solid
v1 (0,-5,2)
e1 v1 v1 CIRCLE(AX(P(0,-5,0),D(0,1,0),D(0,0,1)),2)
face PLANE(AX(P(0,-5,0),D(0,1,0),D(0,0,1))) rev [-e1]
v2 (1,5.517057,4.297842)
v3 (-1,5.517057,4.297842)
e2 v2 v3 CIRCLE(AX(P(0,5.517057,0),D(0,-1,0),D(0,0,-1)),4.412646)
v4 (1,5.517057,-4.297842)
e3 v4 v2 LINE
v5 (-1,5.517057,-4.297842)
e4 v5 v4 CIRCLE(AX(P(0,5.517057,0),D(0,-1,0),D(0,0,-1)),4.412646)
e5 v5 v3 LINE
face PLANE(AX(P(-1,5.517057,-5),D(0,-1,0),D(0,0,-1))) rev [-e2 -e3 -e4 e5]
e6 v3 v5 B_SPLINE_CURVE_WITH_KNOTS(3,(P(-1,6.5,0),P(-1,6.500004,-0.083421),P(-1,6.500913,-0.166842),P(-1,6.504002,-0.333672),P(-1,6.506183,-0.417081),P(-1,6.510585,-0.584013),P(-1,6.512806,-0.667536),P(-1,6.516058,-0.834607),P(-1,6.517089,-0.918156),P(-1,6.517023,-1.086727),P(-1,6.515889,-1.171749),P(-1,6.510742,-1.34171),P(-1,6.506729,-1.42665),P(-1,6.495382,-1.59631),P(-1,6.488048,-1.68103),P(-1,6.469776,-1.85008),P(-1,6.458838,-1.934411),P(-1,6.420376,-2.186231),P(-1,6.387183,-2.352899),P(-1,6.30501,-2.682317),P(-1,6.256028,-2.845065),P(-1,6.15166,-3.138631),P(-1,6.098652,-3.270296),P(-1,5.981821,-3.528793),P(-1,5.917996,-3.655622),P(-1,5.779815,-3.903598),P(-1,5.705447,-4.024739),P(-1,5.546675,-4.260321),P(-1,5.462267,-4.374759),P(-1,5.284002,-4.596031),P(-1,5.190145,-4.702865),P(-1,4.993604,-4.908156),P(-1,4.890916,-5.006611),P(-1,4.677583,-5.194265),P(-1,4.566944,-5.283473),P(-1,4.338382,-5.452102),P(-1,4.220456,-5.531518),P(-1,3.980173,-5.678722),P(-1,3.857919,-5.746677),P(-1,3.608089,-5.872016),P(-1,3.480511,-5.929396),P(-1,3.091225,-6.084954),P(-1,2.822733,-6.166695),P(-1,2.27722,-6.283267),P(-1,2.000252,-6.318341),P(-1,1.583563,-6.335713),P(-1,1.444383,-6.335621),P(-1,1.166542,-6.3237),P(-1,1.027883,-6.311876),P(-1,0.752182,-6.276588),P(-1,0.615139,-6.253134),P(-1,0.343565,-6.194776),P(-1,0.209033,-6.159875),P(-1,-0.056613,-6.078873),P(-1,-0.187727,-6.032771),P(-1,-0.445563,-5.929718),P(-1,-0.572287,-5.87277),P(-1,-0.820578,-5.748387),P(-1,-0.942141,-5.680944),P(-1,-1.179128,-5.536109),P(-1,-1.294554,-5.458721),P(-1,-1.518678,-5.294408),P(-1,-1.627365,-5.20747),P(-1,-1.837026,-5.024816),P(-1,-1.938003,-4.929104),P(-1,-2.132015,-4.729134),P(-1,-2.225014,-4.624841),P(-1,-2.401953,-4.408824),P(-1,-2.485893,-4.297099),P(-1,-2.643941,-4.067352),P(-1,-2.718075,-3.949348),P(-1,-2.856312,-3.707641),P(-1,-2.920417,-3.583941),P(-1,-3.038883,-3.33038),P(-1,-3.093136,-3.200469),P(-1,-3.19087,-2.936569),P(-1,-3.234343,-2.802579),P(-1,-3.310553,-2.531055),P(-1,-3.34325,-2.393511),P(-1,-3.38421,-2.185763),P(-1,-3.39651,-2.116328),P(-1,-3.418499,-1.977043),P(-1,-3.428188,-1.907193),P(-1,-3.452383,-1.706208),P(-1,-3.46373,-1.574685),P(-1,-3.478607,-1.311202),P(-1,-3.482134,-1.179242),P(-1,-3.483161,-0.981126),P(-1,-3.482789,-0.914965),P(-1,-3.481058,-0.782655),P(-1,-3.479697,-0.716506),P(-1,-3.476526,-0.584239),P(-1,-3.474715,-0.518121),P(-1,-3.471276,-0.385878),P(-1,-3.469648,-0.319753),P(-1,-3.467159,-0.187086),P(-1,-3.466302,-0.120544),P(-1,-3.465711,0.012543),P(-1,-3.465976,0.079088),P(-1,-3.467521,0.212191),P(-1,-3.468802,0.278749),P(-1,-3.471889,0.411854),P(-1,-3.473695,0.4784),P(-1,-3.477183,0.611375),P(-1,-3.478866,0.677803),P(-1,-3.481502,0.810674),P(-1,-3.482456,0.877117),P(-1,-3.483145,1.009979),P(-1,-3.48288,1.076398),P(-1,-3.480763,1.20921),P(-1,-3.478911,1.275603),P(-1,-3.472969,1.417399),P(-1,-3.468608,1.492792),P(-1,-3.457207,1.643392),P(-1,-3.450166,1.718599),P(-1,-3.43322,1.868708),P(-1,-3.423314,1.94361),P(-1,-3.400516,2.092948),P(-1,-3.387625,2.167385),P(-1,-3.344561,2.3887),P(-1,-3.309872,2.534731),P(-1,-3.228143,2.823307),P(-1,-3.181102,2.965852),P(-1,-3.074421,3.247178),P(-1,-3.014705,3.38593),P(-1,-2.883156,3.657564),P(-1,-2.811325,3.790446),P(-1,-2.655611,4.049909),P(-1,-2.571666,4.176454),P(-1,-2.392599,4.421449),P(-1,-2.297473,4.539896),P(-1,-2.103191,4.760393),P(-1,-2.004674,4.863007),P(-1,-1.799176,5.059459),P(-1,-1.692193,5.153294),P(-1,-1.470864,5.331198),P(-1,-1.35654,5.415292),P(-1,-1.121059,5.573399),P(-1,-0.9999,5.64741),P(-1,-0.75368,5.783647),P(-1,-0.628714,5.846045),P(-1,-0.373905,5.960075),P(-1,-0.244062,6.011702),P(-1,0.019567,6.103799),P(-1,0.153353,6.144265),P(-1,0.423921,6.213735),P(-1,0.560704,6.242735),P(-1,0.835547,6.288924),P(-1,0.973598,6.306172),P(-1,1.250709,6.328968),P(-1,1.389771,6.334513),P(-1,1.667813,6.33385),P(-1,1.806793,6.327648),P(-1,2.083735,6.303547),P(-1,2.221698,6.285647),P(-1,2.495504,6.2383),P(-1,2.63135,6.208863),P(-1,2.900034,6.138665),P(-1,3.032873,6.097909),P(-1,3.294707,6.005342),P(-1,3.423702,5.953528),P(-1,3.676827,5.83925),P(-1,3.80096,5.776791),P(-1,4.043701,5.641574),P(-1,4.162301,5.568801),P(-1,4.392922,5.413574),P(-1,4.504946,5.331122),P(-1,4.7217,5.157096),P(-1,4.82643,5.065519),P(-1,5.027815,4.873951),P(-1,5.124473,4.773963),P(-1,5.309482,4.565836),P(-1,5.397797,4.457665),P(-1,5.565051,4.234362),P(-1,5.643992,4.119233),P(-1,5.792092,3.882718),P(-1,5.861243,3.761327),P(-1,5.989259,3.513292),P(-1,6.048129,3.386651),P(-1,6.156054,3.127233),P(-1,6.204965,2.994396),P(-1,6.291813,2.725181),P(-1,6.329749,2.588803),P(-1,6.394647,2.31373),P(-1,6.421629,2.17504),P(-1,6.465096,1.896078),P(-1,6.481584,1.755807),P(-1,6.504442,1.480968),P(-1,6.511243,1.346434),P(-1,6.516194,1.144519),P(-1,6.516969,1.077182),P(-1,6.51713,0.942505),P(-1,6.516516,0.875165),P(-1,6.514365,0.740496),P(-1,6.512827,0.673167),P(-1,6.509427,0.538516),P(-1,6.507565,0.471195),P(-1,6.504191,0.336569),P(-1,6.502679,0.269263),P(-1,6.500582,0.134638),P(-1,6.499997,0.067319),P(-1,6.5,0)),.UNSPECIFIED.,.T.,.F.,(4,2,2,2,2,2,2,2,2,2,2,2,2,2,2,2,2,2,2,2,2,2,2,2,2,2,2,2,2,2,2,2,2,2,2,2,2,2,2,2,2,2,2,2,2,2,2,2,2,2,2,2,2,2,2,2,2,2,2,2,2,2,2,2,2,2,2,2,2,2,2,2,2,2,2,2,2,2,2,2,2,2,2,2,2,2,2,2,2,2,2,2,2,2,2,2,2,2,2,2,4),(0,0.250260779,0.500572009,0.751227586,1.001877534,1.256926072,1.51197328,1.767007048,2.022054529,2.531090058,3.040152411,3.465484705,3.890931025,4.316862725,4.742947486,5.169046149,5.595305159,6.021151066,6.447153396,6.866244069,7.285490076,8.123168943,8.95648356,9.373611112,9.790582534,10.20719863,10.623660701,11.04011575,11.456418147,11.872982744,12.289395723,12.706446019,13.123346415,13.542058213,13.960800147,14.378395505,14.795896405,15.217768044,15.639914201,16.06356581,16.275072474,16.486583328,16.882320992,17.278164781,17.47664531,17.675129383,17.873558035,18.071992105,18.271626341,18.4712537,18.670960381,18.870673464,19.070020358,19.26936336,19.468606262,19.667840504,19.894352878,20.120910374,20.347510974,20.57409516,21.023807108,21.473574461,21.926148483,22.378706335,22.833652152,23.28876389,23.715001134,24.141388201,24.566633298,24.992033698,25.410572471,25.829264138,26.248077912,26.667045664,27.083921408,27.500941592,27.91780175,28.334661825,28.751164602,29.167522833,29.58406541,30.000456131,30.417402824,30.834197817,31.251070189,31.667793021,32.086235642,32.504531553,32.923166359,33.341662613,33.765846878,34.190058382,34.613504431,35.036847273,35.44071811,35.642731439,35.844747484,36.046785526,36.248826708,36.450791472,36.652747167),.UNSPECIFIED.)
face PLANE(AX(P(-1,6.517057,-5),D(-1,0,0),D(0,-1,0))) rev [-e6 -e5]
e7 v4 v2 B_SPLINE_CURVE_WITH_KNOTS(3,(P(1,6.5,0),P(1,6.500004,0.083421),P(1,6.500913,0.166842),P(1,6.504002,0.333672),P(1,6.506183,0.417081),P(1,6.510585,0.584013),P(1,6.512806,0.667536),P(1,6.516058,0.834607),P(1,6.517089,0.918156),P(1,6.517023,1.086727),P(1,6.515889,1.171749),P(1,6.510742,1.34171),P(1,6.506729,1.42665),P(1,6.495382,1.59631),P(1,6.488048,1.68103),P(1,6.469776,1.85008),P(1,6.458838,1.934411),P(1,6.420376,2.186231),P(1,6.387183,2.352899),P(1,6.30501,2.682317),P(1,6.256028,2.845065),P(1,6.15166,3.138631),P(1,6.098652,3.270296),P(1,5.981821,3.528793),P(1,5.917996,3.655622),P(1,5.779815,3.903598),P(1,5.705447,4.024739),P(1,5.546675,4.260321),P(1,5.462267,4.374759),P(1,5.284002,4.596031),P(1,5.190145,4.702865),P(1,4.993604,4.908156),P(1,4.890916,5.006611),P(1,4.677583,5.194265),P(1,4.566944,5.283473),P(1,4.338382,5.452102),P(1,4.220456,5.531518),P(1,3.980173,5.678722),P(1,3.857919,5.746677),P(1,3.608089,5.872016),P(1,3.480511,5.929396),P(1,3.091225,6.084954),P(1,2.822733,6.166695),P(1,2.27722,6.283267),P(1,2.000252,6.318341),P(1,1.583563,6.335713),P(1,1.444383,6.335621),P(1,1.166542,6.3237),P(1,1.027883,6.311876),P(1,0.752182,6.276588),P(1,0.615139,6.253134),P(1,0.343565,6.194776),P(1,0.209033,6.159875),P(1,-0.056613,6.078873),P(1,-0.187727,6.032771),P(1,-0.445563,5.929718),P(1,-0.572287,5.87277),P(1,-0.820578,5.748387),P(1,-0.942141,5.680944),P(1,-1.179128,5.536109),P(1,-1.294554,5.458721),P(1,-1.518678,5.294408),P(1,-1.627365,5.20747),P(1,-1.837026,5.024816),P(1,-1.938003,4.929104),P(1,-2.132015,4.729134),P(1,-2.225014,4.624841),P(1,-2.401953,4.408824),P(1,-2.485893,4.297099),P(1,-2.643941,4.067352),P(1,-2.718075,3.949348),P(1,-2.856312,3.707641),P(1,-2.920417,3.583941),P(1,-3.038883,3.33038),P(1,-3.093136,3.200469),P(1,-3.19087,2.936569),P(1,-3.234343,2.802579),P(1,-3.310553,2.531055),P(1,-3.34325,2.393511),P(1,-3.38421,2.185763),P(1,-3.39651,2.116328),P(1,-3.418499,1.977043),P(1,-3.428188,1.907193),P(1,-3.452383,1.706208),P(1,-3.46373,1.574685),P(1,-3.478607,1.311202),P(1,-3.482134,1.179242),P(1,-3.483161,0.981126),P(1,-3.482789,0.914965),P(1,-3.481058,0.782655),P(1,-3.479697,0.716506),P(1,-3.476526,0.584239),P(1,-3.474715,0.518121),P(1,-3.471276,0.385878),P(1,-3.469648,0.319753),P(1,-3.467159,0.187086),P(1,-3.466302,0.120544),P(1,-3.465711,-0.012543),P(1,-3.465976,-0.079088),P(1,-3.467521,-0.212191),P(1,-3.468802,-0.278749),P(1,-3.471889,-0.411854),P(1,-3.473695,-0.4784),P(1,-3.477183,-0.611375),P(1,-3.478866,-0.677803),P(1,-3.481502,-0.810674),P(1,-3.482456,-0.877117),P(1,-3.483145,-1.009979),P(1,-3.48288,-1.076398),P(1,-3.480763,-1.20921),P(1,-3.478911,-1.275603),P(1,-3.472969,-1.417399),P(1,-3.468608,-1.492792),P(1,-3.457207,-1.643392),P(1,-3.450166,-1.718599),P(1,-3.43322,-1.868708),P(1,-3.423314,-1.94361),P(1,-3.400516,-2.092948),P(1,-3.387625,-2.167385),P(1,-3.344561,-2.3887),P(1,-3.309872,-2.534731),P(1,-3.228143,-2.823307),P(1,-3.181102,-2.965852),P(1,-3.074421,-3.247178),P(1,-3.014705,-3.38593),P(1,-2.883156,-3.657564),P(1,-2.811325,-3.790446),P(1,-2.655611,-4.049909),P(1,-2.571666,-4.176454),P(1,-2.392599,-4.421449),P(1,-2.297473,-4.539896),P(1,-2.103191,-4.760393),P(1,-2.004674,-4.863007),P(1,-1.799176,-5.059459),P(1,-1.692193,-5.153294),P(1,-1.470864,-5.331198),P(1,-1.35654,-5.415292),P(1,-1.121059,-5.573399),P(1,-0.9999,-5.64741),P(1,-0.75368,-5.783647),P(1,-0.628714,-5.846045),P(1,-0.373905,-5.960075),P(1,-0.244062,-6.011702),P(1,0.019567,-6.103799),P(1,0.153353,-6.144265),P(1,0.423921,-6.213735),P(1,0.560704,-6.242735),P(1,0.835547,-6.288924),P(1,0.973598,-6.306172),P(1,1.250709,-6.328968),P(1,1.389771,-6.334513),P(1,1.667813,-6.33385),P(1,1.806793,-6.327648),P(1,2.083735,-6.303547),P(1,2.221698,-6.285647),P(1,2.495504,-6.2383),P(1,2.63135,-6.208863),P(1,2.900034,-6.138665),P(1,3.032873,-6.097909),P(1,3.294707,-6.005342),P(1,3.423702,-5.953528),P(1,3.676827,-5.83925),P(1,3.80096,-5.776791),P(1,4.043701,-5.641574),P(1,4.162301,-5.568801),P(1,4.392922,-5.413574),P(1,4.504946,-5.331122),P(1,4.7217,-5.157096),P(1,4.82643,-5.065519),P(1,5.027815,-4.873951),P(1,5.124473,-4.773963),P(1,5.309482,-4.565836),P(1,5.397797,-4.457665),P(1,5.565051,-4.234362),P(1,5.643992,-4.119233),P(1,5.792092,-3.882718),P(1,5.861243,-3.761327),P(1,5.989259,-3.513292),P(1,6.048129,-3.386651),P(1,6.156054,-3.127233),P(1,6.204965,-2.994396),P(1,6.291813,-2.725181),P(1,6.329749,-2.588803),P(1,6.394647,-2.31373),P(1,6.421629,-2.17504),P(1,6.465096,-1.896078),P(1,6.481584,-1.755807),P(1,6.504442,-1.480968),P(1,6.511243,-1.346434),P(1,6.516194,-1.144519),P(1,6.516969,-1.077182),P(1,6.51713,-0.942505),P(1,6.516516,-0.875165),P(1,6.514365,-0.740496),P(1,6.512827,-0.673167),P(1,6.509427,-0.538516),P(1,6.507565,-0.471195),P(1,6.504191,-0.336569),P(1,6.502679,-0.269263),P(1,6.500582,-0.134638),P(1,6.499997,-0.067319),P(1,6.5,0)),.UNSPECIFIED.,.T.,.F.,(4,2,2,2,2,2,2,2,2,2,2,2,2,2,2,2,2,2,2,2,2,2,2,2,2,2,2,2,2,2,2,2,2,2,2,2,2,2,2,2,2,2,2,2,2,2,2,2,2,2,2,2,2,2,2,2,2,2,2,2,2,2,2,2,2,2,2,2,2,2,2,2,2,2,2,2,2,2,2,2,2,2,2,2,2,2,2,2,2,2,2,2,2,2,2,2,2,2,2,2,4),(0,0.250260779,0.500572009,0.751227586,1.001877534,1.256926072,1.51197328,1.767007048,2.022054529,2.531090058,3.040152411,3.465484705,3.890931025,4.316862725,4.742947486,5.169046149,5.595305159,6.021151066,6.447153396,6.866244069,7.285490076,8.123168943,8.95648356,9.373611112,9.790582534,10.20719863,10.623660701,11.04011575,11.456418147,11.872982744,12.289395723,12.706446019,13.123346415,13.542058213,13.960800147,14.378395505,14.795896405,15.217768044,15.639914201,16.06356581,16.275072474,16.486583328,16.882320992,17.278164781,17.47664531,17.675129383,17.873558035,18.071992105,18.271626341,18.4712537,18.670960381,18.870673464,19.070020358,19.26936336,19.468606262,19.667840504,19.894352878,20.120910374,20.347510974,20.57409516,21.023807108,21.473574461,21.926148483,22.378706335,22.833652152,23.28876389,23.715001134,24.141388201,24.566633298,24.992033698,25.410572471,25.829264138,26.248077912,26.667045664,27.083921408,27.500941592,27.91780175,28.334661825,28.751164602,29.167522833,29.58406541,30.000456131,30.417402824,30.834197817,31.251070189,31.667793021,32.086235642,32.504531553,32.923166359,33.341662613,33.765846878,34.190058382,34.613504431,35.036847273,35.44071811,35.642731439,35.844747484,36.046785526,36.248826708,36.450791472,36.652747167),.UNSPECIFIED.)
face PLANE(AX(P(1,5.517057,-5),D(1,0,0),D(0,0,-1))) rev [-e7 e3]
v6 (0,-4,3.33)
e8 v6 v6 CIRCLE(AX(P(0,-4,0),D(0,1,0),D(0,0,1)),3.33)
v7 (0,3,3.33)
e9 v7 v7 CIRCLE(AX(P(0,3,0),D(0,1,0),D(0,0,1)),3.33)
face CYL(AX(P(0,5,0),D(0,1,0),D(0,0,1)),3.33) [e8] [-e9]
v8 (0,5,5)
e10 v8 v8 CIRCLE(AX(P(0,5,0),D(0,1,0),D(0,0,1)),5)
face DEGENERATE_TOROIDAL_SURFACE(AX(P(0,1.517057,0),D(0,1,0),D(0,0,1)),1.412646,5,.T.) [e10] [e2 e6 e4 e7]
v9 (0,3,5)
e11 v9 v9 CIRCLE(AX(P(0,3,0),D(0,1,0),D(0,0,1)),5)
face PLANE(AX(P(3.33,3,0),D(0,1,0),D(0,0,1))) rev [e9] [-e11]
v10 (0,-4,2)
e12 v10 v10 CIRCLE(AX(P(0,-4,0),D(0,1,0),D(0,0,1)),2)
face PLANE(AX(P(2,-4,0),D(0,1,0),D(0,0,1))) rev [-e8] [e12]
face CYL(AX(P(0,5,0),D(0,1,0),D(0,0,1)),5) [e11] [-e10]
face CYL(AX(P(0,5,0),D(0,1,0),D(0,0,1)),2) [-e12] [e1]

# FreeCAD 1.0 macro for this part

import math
import FreeCAD as App
import Part
import Sketcher
Q = App.Units.Quantity


def add_polygon(sketch, points):
    """Adds a closed chain of lines whose ends are joined by coincident constraints."""
    first, n = sketch.GeometryCount, len(points)
    for a, b in zip(points, points[1:] + points[:1]):
        sketch.addGeometry(Part.LineSegment(App.Vector(*a, 0), App.Vector(*b, 0)), False)
    for i in range(n):
        sketch.addConstraint(Sketcher.Constraint("Coincident", first + i, 2, first + (i + 1) % n, 1))

doc = App.newDocument("Part")
body = doc.addObject("PartDesign::Body", "Body")

# Sketch on XY plane
sketch1 = body.newObject("Sketcher::SketchObject", "Sketch")
sketch1.AttachmentSupport = (doc.getObject("XY_Plane"), [""])
sketch1.MapMode = "FlatFace"
sketch1.addGeometry([
    Part.LineSegment(App.Vector(0, -5, 0), App.Vector(2, -5, 0)),  # 0
    Part.LineSegment(App.Vector(2, -5, 0), App.Vector(2, -4, 0)),  # 1
    Part.LineSegment(App.Vector(2, -4, 0), App.Vector(3.3, -4, 0)),  # 2
    Part.LineSegment(App.Vector(3.3, -4, 0), App.Vector(3.3, 3, 0)),  # 3
    Part.LineSegment(App.Vector(3.3, 3, 0), App.Vector(5, 3, 0)),  # 4
    Part.LineSegment(App.Vector(5, 3, 0), App.Vector(5, 5, 0)),  # 5
    Part.ArcOfCircle(Part.Circle(App.Vector(1.4, 1.5, 0), App.Vector(0, 0, 1), 5), math.radians(44), math.radians(95)),  # 6
    Part.LineSegment(App.Vector(1, 6.5, 0), App.Vector(1, 5.5, 0)),  # 7
    Part.LineSegment(App.Vector(1, 5.5, 0), App.Vector(0, 5.5, 0)),  # 8
    Part.LineSegment(App.Vector(0, 5.5, 0), App.Vector(0, -5, 0)),  # 9
], False)
sketch1.addConstraint([
    Sketcher.Constraint("Coincident", 0, 2, 1, 1),
    Sketcher.Constraint("Coincident", 1, 2, 2, 1),
    Sketcher.Constraint("Coincident", 2, 2, 3, 1),
    Sketcher.Constraint("Coincident", 3, 2, 4, 1),
    Sketcher.Constraint("Coincident", 4, 2, 5, 1),
    Sketcher.Constraint("Coincident", 5, 2, 6, 1),
    Sketcher.Constraint("Coincident", 6, 2, 7, 1),
    Sketcher.Constraint("Coincident", 7, 2, 8, 1),
    Sketcher.Constraint("Coincident", 8, 2, 9, 1),
    Sketcher.Constraint("Coincident", 9, 2, 0, 1),
    Sketcher.Constraint("Horizontal", 0),
    Sketcher.Constraint("Vertical", 1),
    Sketcher.Constraint("Horizontal", 2),
    Sketcher.Constraint("Vertical", 3),
    Sketcher.Constraint("Horizontal", 4),
    Sketcher.Constraint("Vertical", 5),
    Sketcher.Constraint("Vertical", 7),
    Sketcher.Constraint("Horizontal", 8),
    Sketcher.Constraint("Vertical", 9),
    Sketcher.Constraint("PointOnObject", 8, 2, -2),
    Sketcher.Constraint("Equal", 8, 1),
    Sketcher.Constraint("Equal", 0, 5),
    Sketcher.Constraint("Equal", 1, 7),
    Sketcher.Constraint("Radius", 6, Q("5 mm")),
    Sketcher.Constraint("DistanceX", 0, 1, 0, 2, Q("2 mm")),
    Sketcher.Constraint("DistanceX", 8, 2, 8, 1, Q("1 mm")),
    Sketcher.Constraint("DistanceY", 3, 1, 3, 2, Q("7 mm")),
    Sketcher.Constraint("DistanceY", 9, 2, 9, 1, Q("10.5 mm")),
    Sketcher.Constraint("DistanceY", 0, 2, -1, 1, Q("5 mm")),
    Sketcher.Constraint("DistanceX", -1, 1, 4, 2, Q("5 mm")),
    Sketcher.Constraint("DistanceX", 2, 1, 2, 2, Q("1.33 mm")),
])
revolution = body.newObject("PartDesign::Revolution", "Revolution")
revolution.Profile = sketch1
revolution.ReferenceAxis = (sketch1, ["V_Axis"])
revolution.Angle = 360

# Sketch on XZ plane
sketch2 = body.newObject("Sketcher::SketchObject", "Sketch001")
sketch2.AttachmentSupport = (doc.getObject("XZ_Plane"), [""])
sketch2.MapMode = "FlatFace"
sketch2.AttachmentOffset = App.Placement(App.Vector(0, 0, -5.5), App.Rotation())
sketch2.addGeometry(Part.Circle(App.Vector(0, 0, 0), App.Vector(0, 0, 1), 1), False)
sketch2.addConstraint([
    Sketcher.Constraint("Coincident", 0, 3, -1, 1),
    Sketcher.Constraint("Diameter", 0, Q("2 mm")),
])
pad1 = body.newObject("PartDesign::Pad", "Pad")
pad1.Profile = sketch2
pad1.Length = 1
pad1.Reversed = True

# Sketch on XY plane
sketch3 = body.newObject("Sketcher::SketchObject", "Sketch002")
sketch3.AttachmentSupport = (doc.getObject("XY_Plane"), [""])
sketch3.MapMode = "FlatFace"
add_polygon(sketch3, [(-1, 6.5), (-1, 5.5), (1, 5.5), (1, 6.5)])  # lines 0-3
sketch3.addConstraint([
    Sketcher.Constraint("Vertical", 0),
    Sketcher.Constraint("Horizontal", 1),
    Sketcher.Constraint("Vertical", 2),
    Sketcher.Constraint("Horizontal", 3),
    Sketcher.Constraint("DistanceX", 1, 1, 1, 2, Q("2 mm")),
    Sketcher.Constraint("DistanceY", 0, 2, 0, 1, Q("1 mm")),
    Sketcher.Constraint("DistanceX", 0, 2, -1, 1, Q("1 mm")),
    Sketcher.Constraint("DistanceY", -1, 1, 0, 2, Q("5.517057 mm")),
])
pocket1 = body.newObject("PartDesign::Pocket", "Pocket")
pocket1.Profile = sketch3
pocket1.Length = 10
pocket1.Midplane = True

doc.recompute()
